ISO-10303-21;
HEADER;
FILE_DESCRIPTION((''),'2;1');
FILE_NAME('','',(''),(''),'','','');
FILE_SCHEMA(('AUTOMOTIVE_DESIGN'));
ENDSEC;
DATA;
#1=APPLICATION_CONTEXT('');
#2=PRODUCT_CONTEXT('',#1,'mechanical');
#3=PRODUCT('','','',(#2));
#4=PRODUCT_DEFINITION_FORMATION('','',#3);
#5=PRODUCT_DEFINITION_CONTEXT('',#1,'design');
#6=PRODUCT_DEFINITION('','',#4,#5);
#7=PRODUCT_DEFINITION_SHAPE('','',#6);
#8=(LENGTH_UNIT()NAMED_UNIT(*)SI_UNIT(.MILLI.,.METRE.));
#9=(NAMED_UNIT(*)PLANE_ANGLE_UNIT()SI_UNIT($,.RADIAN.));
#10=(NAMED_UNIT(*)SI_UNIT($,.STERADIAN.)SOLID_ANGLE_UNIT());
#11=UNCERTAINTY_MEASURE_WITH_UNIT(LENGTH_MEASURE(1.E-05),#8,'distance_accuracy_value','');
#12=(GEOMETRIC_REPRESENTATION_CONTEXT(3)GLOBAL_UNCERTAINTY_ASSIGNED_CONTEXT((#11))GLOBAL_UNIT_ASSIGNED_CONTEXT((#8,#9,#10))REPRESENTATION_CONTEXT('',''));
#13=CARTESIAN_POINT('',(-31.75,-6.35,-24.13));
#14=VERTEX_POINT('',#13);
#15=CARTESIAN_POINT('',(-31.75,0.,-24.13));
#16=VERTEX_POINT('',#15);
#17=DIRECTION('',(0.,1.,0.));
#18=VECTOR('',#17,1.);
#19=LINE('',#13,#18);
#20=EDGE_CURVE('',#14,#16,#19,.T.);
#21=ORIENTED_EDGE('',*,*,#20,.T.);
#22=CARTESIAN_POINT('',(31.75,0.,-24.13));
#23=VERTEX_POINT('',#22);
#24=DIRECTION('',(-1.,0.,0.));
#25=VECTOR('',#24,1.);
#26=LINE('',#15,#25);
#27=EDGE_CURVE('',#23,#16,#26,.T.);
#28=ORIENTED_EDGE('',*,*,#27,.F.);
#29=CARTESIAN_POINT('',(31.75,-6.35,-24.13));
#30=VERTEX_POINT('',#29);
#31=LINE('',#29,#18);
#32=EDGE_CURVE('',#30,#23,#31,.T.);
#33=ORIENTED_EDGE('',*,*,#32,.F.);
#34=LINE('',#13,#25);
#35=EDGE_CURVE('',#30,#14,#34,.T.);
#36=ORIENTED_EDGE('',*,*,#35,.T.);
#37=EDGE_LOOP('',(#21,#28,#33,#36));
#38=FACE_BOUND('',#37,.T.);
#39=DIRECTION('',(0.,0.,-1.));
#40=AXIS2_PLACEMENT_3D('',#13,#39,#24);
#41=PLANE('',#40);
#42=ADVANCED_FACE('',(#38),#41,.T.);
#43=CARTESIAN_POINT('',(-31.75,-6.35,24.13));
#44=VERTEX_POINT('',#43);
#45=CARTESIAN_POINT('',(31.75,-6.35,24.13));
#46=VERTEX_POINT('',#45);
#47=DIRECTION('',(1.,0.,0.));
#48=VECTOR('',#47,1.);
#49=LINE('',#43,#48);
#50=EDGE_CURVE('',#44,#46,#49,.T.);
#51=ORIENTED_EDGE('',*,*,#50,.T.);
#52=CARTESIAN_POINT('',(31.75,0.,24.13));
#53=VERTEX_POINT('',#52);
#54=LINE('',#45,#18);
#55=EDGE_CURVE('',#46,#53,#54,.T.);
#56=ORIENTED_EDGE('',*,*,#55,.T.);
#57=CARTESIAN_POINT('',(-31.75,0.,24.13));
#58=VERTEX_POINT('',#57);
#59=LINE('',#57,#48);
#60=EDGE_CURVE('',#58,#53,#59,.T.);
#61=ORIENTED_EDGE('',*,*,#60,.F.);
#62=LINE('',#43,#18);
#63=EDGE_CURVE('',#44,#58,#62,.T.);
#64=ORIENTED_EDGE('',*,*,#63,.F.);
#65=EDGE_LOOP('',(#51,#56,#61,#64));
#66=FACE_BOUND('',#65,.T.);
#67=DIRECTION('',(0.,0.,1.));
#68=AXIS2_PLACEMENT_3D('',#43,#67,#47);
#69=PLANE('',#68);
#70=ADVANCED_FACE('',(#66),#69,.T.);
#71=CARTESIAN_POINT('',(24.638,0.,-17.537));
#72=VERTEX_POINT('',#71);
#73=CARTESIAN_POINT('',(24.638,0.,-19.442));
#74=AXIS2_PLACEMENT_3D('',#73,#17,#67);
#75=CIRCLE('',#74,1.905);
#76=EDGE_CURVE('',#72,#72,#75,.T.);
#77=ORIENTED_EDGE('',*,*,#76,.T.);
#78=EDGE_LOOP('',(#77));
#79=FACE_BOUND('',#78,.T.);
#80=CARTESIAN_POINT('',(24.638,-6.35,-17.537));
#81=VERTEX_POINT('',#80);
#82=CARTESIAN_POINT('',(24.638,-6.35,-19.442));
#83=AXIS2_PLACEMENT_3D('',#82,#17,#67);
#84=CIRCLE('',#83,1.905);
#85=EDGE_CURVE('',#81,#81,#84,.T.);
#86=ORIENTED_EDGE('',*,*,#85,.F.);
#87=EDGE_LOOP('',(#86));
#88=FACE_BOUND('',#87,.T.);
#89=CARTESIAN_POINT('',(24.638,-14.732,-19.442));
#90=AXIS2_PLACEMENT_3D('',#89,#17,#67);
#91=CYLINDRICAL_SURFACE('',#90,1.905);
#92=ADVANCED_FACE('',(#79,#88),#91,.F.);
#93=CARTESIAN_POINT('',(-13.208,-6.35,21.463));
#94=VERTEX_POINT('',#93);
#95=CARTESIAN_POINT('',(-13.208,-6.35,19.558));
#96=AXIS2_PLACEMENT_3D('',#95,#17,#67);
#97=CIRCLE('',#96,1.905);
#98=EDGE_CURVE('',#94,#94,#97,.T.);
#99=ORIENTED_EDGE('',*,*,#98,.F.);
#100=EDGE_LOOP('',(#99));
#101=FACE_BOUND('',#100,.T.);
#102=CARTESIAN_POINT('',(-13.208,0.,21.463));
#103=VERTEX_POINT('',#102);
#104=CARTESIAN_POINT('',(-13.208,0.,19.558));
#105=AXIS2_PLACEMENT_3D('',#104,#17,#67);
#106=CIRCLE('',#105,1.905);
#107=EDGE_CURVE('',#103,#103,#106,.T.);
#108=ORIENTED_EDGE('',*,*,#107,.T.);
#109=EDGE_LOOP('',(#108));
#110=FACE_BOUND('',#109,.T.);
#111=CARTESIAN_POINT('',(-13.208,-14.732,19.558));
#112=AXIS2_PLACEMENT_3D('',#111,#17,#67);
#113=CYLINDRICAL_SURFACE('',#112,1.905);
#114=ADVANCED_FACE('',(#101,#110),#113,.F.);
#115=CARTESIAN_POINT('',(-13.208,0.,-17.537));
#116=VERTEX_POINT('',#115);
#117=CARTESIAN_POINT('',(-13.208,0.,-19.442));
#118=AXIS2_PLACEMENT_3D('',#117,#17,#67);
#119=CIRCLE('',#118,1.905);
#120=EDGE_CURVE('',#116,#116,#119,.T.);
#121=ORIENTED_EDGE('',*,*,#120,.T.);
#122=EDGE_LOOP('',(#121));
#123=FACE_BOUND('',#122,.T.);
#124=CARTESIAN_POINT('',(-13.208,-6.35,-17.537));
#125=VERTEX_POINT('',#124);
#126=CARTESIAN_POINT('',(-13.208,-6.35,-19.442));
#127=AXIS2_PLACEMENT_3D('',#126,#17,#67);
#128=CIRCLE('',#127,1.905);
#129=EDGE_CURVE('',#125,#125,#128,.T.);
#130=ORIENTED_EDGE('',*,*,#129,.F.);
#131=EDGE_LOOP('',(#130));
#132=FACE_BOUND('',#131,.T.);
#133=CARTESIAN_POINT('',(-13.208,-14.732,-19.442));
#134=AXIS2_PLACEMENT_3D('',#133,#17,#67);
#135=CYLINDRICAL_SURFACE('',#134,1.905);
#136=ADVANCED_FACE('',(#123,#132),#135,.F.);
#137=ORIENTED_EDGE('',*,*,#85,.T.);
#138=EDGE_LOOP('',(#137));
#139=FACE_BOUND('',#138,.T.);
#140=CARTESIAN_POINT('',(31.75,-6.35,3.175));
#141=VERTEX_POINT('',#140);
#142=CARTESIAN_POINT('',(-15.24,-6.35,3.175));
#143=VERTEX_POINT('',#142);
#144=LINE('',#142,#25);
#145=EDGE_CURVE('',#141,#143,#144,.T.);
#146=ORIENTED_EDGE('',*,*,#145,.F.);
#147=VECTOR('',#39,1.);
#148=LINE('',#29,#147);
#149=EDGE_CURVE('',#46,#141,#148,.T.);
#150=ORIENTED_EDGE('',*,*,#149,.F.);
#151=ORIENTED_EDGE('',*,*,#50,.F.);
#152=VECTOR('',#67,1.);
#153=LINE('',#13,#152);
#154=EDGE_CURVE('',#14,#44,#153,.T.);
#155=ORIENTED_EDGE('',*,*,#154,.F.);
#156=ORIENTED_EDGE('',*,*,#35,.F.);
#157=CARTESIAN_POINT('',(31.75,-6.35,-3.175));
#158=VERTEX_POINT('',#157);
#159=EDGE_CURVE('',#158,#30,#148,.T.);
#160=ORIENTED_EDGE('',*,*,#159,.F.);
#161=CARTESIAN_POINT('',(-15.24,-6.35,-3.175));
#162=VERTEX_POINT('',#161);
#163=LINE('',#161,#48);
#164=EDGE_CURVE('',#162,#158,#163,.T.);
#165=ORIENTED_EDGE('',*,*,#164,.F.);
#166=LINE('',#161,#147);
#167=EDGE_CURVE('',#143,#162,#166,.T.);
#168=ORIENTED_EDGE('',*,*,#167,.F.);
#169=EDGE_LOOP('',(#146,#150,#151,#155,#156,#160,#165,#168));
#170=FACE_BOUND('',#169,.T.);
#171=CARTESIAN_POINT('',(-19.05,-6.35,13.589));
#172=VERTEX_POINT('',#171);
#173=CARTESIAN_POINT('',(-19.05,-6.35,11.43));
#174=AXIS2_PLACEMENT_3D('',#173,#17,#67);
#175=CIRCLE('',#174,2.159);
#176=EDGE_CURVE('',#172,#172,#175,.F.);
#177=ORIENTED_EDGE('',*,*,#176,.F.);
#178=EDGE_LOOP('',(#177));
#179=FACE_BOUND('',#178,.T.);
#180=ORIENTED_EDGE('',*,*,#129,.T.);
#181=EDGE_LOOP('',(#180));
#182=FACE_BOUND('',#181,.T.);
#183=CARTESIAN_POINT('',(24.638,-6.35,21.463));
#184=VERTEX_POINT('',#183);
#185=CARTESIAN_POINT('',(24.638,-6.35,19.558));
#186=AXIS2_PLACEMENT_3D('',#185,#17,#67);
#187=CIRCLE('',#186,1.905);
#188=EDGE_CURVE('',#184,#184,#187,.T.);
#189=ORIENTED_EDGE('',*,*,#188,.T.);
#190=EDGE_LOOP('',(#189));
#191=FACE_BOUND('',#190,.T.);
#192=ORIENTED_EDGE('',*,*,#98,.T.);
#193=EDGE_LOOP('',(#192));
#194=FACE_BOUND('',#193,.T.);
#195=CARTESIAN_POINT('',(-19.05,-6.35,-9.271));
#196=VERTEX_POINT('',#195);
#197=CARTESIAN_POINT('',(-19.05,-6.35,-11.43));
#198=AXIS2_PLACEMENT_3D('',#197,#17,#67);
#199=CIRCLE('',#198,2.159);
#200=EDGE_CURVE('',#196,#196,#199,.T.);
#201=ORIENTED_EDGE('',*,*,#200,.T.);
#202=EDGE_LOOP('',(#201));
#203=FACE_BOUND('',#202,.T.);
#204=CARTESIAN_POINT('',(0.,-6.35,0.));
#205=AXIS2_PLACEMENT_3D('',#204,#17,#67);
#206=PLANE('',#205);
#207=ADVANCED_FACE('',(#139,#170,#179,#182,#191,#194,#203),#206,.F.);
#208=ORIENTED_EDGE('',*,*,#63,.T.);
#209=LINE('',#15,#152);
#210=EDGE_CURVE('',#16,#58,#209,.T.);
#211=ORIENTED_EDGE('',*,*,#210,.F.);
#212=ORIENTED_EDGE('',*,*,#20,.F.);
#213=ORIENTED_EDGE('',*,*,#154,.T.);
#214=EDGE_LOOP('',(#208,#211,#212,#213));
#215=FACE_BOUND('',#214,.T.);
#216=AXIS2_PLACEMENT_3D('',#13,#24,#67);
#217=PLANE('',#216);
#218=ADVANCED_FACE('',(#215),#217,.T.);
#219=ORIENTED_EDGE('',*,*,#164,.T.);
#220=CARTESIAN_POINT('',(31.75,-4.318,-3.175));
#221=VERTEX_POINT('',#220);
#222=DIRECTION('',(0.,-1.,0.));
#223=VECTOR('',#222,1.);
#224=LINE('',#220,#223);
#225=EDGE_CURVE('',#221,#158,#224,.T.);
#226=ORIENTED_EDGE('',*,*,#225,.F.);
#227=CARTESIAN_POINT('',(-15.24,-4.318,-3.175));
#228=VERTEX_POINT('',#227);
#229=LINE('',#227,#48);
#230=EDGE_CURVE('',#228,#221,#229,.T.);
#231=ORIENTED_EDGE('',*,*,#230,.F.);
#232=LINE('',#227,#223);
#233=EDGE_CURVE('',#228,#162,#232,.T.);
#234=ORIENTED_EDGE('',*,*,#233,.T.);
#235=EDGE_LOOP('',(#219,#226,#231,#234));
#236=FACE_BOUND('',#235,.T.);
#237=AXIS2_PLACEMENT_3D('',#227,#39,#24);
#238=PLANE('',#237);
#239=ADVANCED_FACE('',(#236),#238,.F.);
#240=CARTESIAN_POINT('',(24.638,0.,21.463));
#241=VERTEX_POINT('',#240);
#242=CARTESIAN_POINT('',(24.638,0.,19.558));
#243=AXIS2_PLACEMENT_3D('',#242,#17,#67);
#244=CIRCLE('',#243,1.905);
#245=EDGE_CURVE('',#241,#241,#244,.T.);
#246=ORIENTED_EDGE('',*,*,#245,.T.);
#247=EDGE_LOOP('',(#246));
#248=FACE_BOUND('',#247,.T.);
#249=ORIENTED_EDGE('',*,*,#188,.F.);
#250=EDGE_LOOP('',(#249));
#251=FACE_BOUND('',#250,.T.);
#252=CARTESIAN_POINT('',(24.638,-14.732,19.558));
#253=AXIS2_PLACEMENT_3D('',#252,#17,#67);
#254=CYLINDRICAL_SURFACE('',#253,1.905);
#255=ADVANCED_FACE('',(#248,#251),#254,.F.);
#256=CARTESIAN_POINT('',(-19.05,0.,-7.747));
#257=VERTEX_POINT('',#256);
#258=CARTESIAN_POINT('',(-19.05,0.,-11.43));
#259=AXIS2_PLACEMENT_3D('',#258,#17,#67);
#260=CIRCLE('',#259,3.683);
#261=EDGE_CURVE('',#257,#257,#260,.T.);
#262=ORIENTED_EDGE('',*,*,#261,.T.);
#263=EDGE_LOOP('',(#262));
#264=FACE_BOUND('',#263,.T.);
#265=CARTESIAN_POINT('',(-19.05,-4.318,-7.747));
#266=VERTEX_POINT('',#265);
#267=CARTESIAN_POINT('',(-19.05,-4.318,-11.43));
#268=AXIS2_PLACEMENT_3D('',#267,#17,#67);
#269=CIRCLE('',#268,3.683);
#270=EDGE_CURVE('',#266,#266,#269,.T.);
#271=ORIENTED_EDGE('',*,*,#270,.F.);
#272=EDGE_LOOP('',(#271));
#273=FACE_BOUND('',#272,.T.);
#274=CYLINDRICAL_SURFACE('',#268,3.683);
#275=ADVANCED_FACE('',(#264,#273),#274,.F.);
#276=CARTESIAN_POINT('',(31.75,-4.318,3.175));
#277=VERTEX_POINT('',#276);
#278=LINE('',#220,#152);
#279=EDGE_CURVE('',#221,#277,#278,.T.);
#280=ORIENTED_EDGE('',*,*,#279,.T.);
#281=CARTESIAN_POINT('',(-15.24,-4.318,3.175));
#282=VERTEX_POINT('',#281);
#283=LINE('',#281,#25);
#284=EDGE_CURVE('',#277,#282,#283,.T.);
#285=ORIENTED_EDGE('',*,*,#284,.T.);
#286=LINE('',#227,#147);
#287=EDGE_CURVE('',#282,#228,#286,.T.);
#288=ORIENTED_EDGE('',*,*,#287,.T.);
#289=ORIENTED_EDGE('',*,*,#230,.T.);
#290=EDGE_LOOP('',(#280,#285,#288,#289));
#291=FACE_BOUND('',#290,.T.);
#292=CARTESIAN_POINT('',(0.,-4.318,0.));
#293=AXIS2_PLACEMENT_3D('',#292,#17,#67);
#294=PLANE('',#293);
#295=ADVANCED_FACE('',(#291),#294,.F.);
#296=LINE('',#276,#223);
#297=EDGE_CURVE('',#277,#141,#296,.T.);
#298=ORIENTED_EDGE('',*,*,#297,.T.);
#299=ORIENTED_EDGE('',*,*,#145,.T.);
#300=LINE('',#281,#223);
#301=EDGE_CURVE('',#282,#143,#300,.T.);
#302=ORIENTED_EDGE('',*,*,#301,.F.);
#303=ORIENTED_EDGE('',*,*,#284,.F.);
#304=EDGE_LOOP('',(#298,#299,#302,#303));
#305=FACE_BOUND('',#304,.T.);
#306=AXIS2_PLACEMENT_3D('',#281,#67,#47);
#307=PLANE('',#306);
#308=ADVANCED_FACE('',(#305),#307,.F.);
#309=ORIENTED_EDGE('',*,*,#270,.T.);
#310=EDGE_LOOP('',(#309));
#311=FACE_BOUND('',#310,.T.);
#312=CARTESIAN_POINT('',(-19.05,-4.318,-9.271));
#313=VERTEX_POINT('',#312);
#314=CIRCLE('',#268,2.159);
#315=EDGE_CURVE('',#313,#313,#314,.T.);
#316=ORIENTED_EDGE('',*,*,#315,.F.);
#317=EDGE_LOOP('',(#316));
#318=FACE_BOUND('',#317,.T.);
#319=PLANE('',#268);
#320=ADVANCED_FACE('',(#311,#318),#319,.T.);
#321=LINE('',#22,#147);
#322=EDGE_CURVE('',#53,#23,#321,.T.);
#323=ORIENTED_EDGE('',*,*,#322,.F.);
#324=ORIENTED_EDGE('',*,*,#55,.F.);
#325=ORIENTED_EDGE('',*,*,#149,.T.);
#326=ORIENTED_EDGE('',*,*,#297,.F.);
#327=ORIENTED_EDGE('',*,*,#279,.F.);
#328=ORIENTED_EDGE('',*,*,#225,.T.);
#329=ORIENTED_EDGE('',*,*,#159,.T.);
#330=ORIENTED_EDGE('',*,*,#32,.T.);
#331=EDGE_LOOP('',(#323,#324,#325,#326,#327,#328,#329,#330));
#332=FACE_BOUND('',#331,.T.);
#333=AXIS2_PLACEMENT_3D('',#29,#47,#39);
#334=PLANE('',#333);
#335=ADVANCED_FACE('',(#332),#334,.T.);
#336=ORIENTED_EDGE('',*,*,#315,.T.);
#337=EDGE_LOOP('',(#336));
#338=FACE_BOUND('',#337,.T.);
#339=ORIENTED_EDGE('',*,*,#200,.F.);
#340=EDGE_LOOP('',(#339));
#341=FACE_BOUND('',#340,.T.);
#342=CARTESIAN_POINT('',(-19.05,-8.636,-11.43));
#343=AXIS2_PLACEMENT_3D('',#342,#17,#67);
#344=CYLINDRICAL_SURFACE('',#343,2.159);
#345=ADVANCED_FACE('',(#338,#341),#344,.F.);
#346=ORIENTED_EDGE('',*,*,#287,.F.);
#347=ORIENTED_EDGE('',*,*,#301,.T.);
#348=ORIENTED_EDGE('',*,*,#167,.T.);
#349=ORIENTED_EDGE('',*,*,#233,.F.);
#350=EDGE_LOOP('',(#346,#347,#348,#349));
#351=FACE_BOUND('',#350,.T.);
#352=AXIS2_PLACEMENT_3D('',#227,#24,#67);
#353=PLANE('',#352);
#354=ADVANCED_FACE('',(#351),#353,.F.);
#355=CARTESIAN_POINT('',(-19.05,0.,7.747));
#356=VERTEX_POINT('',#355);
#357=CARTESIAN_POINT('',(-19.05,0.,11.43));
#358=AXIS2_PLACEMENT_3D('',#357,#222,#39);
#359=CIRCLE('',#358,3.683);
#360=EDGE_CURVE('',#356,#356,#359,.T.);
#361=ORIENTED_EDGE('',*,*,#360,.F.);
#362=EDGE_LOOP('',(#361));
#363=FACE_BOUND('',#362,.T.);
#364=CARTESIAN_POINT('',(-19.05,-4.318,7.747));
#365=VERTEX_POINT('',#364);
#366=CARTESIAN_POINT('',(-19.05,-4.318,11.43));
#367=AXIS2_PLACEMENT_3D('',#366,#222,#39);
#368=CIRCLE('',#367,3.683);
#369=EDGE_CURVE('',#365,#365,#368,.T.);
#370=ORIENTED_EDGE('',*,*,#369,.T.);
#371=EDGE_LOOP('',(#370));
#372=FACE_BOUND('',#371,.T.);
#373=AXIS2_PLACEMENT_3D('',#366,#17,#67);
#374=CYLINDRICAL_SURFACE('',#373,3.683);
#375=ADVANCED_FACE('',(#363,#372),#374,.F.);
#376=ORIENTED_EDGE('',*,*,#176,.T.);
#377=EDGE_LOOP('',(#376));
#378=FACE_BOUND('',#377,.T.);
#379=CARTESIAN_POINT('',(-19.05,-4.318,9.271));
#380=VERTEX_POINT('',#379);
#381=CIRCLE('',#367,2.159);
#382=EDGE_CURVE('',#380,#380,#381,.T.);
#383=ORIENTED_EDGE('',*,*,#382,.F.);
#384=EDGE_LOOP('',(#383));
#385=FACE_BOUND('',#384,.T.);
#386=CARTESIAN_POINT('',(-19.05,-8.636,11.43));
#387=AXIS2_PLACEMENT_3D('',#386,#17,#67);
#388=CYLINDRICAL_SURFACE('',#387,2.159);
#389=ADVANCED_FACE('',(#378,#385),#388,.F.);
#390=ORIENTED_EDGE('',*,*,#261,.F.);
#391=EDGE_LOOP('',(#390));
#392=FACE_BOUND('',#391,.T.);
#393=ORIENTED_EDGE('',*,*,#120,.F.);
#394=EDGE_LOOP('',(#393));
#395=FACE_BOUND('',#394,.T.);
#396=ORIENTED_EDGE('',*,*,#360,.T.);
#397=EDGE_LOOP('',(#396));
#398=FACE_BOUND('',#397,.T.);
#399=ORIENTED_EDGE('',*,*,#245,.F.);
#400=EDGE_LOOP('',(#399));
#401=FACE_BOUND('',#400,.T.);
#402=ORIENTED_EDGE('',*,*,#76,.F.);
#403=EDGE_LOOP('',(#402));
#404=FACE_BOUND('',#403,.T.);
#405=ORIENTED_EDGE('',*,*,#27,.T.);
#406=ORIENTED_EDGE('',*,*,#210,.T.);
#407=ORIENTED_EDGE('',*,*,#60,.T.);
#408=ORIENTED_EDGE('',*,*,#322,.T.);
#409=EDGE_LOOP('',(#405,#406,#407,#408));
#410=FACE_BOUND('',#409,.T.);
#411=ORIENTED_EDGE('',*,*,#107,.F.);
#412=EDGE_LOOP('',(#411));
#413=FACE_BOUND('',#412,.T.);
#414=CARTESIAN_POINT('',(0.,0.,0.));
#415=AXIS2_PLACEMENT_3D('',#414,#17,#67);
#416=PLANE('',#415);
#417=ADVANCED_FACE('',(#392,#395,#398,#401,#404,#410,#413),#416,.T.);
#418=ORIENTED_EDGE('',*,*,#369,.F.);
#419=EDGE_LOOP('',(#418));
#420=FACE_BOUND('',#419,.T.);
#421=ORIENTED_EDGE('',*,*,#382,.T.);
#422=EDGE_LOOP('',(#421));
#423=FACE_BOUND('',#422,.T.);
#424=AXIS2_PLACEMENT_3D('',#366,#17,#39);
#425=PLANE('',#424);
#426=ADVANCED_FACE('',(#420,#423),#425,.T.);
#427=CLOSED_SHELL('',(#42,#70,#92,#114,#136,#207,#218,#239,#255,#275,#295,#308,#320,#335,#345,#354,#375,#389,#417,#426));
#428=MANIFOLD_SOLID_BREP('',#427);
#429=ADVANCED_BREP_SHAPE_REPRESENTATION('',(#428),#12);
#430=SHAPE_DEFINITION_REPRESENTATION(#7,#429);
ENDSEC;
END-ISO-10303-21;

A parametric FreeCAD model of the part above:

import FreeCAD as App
import Part
import Sketcher

V = App.Vector
Q = App.Units.Quantity


def add_polygon(sketch, points):
    """Adds a closed chain of lines whose ends are joined by coincident constraints."""
    first, n = sketch.GeometryCount, len(points)
    for a, b in zip(points, points[1:] + points[:1]):
        sketch.addGeometry(Part.LineSegment(App.Vector(*a, 0), App.Vector(*b, 0)), False)
    for i in range(n):
        sketch.addConstraint(Sketcher.Constraint("Coincident", first + i, 2, first + (i + 1) % n, 1))

doc = App.newDocument("Part")
params = doc.addObject("Spreadsheet::Sheet", "Params")
for row, (alias, value) in enumerate([
    ("sketch1_width", "2.5 in"),
    ("sketch1_height", "1.9 in"),
    ("pad1_length", "0.25 in"),
    ("sketch2_diameter", "0.29 in"),
    ("pocket1_length", "0.17 in"),
    ("sketch3_diameter", "0.17 in"),
    ("pocket2_length", "0.17 in"),
    ("sketch4_width", "1.85 in"),
    ("sketch4_height", "0.25 in"),
    ("pocket3_length", "0.08 in"),
    ("sketch5_diameter", "0.15 in"),
    ("pocket4_length", "0.58 in"),
], start=1):
    params.set(f"A{row}", alias)
    params.set(f"B{row}", "=" + value)
    params.setAlias(f"B{row}", alias)

body = doc.addObject("PartDesign::Body", "Body")

# Sketch on XZ plane
sketch1 = body.newObject("Sketcher::SketchObject", "Sketch")
sketch1.AttachmentSupport = (doc.getObject("XZ_Plane"), [""])
sketch1.MapMode = "FlatFace"
add_polygon(sketch1, [(-32, -24), (-32, 24), (32, 24), (32, -24)])  # lines 0-3
sketch1.addConstraint(Sketcher.Constraint("Vertical", 0))
sketch1.addConstraint(Sketcher.Constraint("Horizontal", 1))
sketch1.addConstraint(Sketcher.Constraint("Vertical", 2))
sketch1.addConstraint(Sketcher.Constraint("Horizontal", 3))
sketch1.addConstraint(Sketcher.Constraint("Symmetric", 0, 2, 2, 2, -1, 1))
sketch1.addConstraint(Sketcher.Constraint("DistanceX", 1, 1, 1, 2, Q("2.5 in")))
sketch1.addConstraint(Sketcher.Constraint("DistanceY", 0, 1, 0, 2, Q("1.9 in")))
sketch1.setExpression("Constraints[9]", "Params.sketch1_width")
sketch1.setExpression("Constraints[10]", "Params.sketch1_height")
pad1 = body.newObject("PartDesign::Pad", "Pad")
pad1.Profile = sketch1
pad1.setExpression("Length", "Params.pad1_length")

# Sketch on XZ plane
sketch2 = body.newObject("Sketcher::SketchObject", "Sketch001")
sketch2.AttachmentSupport = (doc.getObject("XZ_Plane"), [""])
sketch2.MapMode = "FlatFace"
sketch2.addGeometry(Part.Circle(V(-19.1, -11.4, 0), V(0, 0, 1), 3.7), False)
sketch2.addConstraint(Sketcher.Constraint("Diameter", 0, Q("0.29 in")))
sketch2.addConstraint(Sketcher.Constraint("DistanceX", 0, 3, -1, 1, Q("0.75 in")))
sketch2.addConstraint(Sketcher.Constraint("DistanceY", 0, 3, -1, 1, Q("0.45 in")))
sketch2.setExpression("Constraints[0]", "Params.sketch2_diameter")
pocket1 = body.newObject("PartDesign::Pocket", "Pocket")
pocket1.Profile = sketch2
pocket1.setExpression("Length", "Params.pocket1_length")
pocket1.Reversed = True

# Sketch on XZ plane
sketch3 = body.newObject("Sketcher::SketchObject", "Sketch002")
sketch3.AttachmentSupport = (doc.getObject("XZ_Plane"), [""])
sketch3.MapMode = "FlatFace"
sketch3.AttachmentOffset = App.Placement(V(0, 0, 0.17 * 25.4), App.Rotation())
sketch3.addGeometry(Part.Circle(V(-19.1, -11.4, 0), V(0, 0, 1), 2.2), False)
sketch3.addConstraint(Sketcher.Constraint("Diameter", 0, Q("0.17 in")))
sketch3.addConstraint(Sketcher.Constraint("DistanceX", 0, 3, -1, 1, Q("0.75 in")))
sketch3.addConstraint(Sketcher.Constraint("DistanceY", 0, 3, -1, 1, Q("0.45 in")))
sketch3.setExpression("Constraints[0]", "Params.sketch3_diameter")
pocket2 = body.newObject("PartDesign::Pocket", "Pocket001")
pocket2.Profile = sketch3
pocket2.setExpression("Length", "Params.pocket2_length")
pocket2.Reversed = True

# Sketch on XZ plane
sketch4 = body.newObject("Sketcher::SketchObject", "Sketch003")
sketch4.AttachmentSupport = (doc.getObject("XZ_Plane"), [""])
sketch4.MapMode = "FlatFace"
sketch4.AttachmentOffset = App.Placement(V(0, 0, 0.25 * 25.4), App.Rotation())
add_polygon(sketch4, [(-15, 3), (-15, -3), (32, -3), (32, 3)])  # lines 0-3
sketch4.addConstraint(Sketcher.Constraint("Vertical", 0))
sketch4.addConstraint(Sketcher.Constraint("Horizontal", 1))
sketch4.addConstraint(Sketcher.Constraint("Vertical", 2))
sketch4.addConstraint(Sketcher.Constraint("Horizontal", 3))
sketch4.addConstraint(Sketcher.Constraint("DistanceX", 1, 1, 1, 2, Q("1.85 in")))
sketch4.addConstraint(Sketcher.Constraint("DistanceY", 0, 2, 0, 1, Q("0.25 in")))
sketch4.addConstraint(Sketcher.Constraint("DistanceX", 0, 2, -1, 1, Q("0.6 in")))
sketch4.addConstraint(Sketcher.Constraint("DistanceY", 0, 2, -1, 1, Q("0.125 in")))
sketch4.setExpression("Constraints[8]", "Params.sketch4_width")
sketch4.setExpression("Constraints[9]", "Params.sketch4_height")
pocket3 = body.newObject("PartDesign::Pocket", "Pocket002")
pocket3.Profile = sketch4
pocket3.setExpression("Length", "Params.pocket3_length")

# Sketch on XZ plane
sketch5 = body.newObject("Sketcher::SketchObject", "Sketch004")
sketch5.AttachmentSupport = (doc.getObject("XZ_Plane"), [""])
sketch5.MapMode = "FlatFace"
sketch5.addGeometry(Part.Circle(V(-13.2, 19.6, 0), V(0, 0, 1), 1.9), False)
sketch5.addGeometry(Part.Circle(V(-13.2, -19.4, 0), V(0, 0, 1), 1.9), False)
sketch5.addGeometry(Part.Circle(V(24.6, 19.6, 0), V(0, 0, 1), 1.9), False)
sketch5.addGeometry(Part.Circle(V(24.6, -19.4, 0), V(0, 0, 1), 1.9), False)
sketch5.addConstraint(Sketcher.Constraint("Equal", 0, 1))
sketch5.addConstraint(Sketcher.Constraint("Equal", 1, 2))
sketch5.addConstraint(Sketcher.Constraint("Equal", 2, 3))
sketch5.addConstraint(Sketcher.Constraint("Horizontal", 0, 3, 2, 3))
sketch5.addConstraint(Sketcher.Constraint("Horizontal", 1, 3, 3, 3))
sketch5.addConstraint(Sketcher.Constraint("Vertical", 0, 3, 1, 3))
sketch5.addConstraint(Sketcher.Constraint("Vertical", 2, 3, 3, 3))
sketch5.addConstraint(Sketcher.Constraint("Diameter", 0, Q("0.15 in")))
sketch5.addConstraint(Sketcher.Constraint("DistanceX", 0, 3, -1, 1, Q("0.52 in")))
sketch5.addConstraint(Sketcher.Constraint("DistanceY", -1, 1, 0, 3, Q("0.77 in")))
sketch5.addConstraint(Sketcher.Constraint("DistanceX", -1, 1, 2, 3, Q("0.97 in")))
sketch5.addConstraint(Sketcher.Constraint("DistanceY", 1, 3, -1, 1, 19.442))
sketch5.setExpression("Constraints[7]", "Params.sketch5_diameter")
pocket4 = body.newObject("PartDesign::Pocket", "Pocket003")
pocket4.Profile = sketch5
pocket4.setExpression("Length", "Params.pocket4_length")
pocket4.Reversed = True
doc.recompute()

mirrored = body.newObject("PartDesign::Mirrored", "Mirrored")
mirrored.Originals = [pocket1, pocket2]
mirrored.MirrorPlane = (doc.getObject("XY_Plane"), [""])
body.Tip = mirrored

doc.recompute()
